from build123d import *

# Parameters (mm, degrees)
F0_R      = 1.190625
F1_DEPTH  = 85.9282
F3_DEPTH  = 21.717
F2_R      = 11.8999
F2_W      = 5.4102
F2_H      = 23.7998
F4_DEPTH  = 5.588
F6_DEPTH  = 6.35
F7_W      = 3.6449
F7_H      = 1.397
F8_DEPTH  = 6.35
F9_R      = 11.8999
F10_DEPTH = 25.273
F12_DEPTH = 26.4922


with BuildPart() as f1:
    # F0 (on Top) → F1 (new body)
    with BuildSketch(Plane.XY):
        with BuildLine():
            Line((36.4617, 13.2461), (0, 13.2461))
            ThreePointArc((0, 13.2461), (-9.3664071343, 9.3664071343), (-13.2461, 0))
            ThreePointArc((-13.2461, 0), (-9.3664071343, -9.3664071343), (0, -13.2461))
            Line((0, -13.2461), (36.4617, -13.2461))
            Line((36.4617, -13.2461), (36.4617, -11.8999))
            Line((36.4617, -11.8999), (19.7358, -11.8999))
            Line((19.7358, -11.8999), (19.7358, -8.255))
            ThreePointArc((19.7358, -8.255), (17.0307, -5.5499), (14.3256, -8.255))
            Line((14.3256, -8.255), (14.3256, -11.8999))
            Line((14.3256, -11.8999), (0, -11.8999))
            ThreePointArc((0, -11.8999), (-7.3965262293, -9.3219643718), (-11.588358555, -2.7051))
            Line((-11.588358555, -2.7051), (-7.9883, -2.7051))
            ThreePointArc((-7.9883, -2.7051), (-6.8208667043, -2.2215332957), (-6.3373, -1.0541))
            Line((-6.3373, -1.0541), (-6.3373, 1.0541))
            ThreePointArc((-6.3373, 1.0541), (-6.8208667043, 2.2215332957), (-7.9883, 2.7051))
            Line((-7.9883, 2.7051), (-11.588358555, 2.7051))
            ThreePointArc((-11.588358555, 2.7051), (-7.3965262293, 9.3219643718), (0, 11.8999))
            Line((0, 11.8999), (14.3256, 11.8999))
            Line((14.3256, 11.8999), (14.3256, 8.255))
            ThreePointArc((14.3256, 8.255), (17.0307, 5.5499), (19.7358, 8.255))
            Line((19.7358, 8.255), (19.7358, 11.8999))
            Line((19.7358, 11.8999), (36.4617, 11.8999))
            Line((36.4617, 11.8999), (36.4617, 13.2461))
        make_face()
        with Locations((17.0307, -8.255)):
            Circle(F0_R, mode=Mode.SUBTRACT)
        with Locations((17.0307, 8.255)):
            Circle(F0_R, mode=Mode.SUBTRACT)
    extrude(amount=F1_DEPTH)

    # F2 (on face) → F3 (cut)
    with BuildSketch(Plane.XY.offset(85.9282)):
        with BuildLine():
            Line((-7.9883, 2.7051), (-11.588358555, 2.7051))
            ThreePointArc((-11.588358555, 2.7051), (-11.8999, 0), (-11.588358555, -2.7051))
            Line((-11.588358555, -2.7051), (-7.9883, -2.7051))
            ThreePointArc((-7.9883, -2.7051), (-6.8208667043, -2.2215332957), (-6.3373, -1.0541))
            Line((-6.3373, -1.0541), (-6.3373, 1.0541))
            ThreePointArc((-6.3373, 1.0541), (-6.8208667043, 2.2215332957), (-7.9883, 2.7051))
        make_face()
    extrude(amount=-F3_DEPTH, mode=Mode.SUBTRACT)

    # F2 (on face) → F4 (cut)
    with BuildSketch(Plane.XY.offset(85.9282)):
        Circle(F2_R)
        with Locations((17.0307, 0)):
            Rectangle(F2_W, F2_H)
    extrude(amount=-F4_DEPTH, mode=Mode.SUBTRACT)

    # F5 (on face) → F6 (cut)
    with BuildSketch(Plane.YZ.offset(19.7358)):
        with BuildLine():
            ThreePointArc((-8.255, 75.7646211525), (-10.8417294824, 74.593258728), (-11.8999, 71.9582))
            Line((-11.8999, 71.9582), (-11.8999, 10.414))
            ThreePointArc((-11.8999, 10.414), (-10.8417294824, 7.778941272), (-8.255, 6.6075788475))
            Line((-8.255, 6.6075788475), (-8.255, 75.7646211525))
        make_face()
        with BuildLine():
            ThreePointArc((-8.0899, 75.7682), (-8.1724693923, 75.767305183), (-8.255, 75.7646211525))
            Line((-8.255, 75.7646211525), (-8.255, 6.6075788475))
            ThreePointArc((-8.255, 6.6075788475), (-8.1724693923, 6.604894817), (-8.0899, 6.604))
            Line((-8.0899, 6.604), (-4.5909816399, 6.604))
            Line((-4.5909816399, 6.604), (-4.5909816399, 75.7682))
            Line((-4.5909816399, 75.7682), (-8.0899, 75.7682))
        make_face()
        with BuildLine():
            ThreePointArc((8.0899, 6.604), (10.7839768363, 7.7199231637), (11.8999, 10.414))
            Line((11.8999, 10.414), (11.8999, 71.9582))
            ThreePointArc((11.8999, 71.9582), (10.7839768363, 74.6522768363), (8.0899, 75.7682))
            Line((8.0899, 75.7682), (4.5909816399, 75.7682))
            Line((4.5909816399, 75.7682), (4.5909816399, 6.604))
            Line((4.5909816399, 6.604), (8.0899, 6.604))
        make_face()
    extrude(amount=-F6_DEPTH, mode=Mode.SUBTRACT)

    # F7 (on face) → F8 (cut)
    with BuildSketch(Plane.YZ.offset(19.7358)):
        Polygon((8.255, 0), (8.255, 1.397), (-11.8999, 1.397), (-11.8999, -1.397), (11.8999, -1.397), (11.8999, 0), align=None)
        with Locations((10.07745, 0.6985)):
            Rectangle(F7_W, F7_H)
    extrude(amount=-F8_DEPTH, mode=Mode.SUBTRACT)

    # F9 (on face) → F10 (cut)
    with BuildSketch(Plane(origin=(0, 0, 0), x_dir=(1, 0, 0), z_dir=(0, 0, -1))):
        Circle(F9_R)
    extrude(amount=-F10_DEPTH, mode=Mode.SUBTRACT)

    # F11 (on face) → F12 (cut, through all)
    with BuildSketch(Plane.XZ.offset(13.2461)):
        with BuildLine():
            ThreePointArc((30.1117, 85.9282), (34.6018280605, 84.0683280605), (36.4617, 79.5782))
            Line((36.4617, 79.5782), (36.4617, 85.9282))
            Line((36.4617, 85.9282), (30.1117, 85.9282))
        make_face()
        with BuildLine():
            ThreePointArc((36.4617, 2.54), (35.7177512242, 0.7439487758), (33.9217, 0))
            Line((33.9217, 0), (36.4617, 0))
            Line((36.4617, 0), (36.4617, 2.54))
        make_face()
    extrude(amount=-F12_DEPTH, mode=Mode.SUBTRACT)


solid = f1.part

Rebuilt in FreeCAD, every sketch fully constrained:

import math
import FreeCAD as App
import Part
import Sketcher
Q = App.Units.Quantity


def add_polygon(sketch, points):
    """Adds a closed chain of lines whose ends are joined by coincident constraints."""
    first, n = sketch.GeometryCount, len(points)
    for a, b in zip(points, points[1:] + points[:1]):
        sketch.addGeometry(Part.LineSegment(App.Vector(*a, 0), App.Vector(*b, 0)), False)
    for i in range(n):
        sketch.addConstraint(Sketcher.Constraint("Coincident", first + i, 2, first + (i + 1) % n, 1))

doc = App.newDocument("Part")
body = doc.addObject("PartDesign::Body", "Body")

# Sketch on XY plane
sketch1 = body.newObject("Sketcher::SketchObject", "Sketch")
sketch1.AttachmentSupport = (doc.getObject("XY_Plane"), [""])
sketch1.MapMode = "FlatFace"
sketch1.addGeometry([
    Part.LineSegment(App.Vector(36.4617, 13.2461, 0), App.Vector(0, 13.2461, 0)),  # 0
    Part.ArcOfCircle(Part.Circle(App.Vector(0, 0, 0), App.Vector(0, 0, 1), 13.2461), math.radians(90), math.radians(180)),  # 1
    Part.ArcOfCircle(Part.Circle(App.Vector(0, 0, 0), App.Vector(0, 0, 1), 13.2461), math.radians(180), math.radians(270)),  # 2
    Part.LineSegment(App.Vector(0, -13.2461, 0), App.Vector(36.4617, -13.2461, 0)),  # 3
    Part.LineSegment(App.Vector(36.4617, -13.2461, 0), App.Vector(36.4617, -11.8999, 0)),  # 4
    Part.LineSegment(App.Vector(36.4617, -11.8999, 0), App.Vector(19.7358, -11.8999, 0)),  # 5
    Part.LineSegment(App.Vector(19.7358, -11.8999, 0), App.Vector(19.7358, -8.255, 0)),  # 6
    Part.ArcOfCircle(Part.Circle(App.Vector(17.0307, -8.255, 0), App.Vector(0, 0, 1), 2.7051), math.radians(0), math.radians(180)),  # 7
    Part.LineSegment(App.Vector(14.3256, -8.255, 0), App.Vector(14.3256, -11.8999, 0)),  # 8
    Part.LineSegment(App.Vector(14.3256, -11.8999, 0), App.Vector(0, -11.8999, 0)),  # 9
    Part.ArcOfCircle(Part.Circle(App.Vector(0, 0, 0), App.Vector(0, 0, 1), 11.8999), math.radians(-166.860587), math.radians(-90)),  # 10
    Part.LineSegment(App.Vector(-11.588359, -2.7051, 0), App.Vector(-7.9883, -2.7051, 0)),  # 11
    Part.ArcOfCircle(Part.Circle(App.Vector(-7.9883, -1.0541, 0), App.Vector(0, 0, 1), 1.651), math.radians(-90), math.radians(0)),  # 12
    Part.LineSegment(App.Vector(-6.3373, -1.0541, 0), App.Vector(-6.3373, 1.0541, 0)),  # 13
    Part.ArcOfCircle(Part.Circle(App.Vector(-7.9883, 1.0541, 0), App.Vector(0, 0, 1), 1.651), math.radians(0), math.radians(90)),  # 14
    Part.LineSegment(App.Vector(-7.9883, 2.7051, 0), App.Vector(-11.588359, 2.7051, 0)),  # 15
    Part.ArcOfCircle(Part.Circle(App.Vector(0, 0, 0), App.Vector(0, 0, 1), 11.8999), math.radians(90), math.radians(166.860587)),  # 16
    Part.LineSegment(App.Vector(0, 11.8999, 0), App.Vector(14.3256, 11.8999, 0)),  # 17
    Part.LineSegment(App.Vector(14.3256, 11.8999, 0), App.Vector(14.3256, 8.255, 0)),  # 18
    Part.ArcOfCircle(Part.Circle(App.Vector(17.0307, 8.255, 0), App.Vector(0, 0, 1), 2.7051), math.radians(180), math.radians(360)),  # 19
    Part.LineSegment(App.Vector(19.7358, 8.255, 0), App.Vector(19.7358, 11.8999, 0)),  # 20
    Part.LineSegment(App.Vector(19.7358, 11.8999, 0), App.Vector(36.4617, 11.8999, 0)),  # 21
    Part.LineSegment(App.Vector(36.4617, 11.8999, 0), App.Vector(36.4617, 13.2461, 0)),  # 22
    Part.Circle(App.Vector(17.0307, -8.255, 0), App.Vector(0, 0, 1), 1.190625),  # 23
    Part.Circle(App.Vector(17.0307, 8.255, 0), App.Vector(0, 0, 1), 1.190625),  # 24
], False)
sketch1.addConstraint([
    Sketcher.Constraint("Tangent", 0, 2, 1, 1),
    Sketcher.Constraint("Tangent", 1, 2, 2, 1),
    Sketcher.Constraint("Tangent", 2, 2, 3, 1),
    Sketcher.Constraint("Coincident", 3, 2, 4, 1),
    Sketcher.Constraint("Coincident", 4, 2, 5, 1),
    Sketcher.Constraint("Coincident", 5, 2, 6, 1),
    Sketcher.Constraint("Tangent", 6, 2, 7, 1),
    Sketcher.Constraint("Tangent", 7, 2, 8, 1),
    Sketcher.Constraint("Coincident", 8, 2, 9, 1),
    Sketcher.Constraint("Tangent", 9, 2, 10, 2),
    Sketcher.Constraint("Coincident", 10, 1, 11, 1),
    Sketcher.Constraint("Tangent", 11, 2, 12, 1),
    Sketcher.Constraint("Tangent", 12, 2, 13, 1),
    Sketcher.Constraint("Tangent", 13, 2, 14, 1),
    Sketcher.Constraint("Tangent", 14, 2, 15, 1),
    Sketcher.Constraint("Coincident", 15, 2, 16, 2),
    Sketcher.Constraint("Tangent", 16, 1, 17, 1),
    Sketcher.Constraint("Coincident", 17, 2, 18, 1),
    Sketcher.Constraint("Tangent", 18, 2, 19, 1),
    Sketcher.Constraint("Tangent", 19, 2, 20, 1),
    Sketcher.Constraint("Coincident", 20, 2, 21, 1),
    Sketcher.Constraint("Coincident", 21, 2, 22, 1),
    Sketcher.Constraint("Coincident", 22, 2, 0, 1),
    Sketcher.Constraint("Horizontal", 0),
    Sketcher.Constraint("Horizontal", 3),
    Sketcher.Constraint("Vertical", 4),
    Sketcher.Constraint("Horizontal", 5),
    Sketcher.Constraint("Vertical", 6),
    Sketcher.Constraint("Vertical", 8),
    Sketcher.Constraint("Horizontal", 9),
    Sketcher.Constraint("Horizontal", 11),
    Sketcher.Constraint("Vertical", 13),
    Sketcher.Constraint("Horizontal", 15),
    Sketcher.Constraint("Horizontal", 17),
    Sketcher.Constraint("Vertical", 18),
    Sketcher.Constraint("Vertical", 20),
    Sketcher.Constraint("Horizontal", 21),
    Sketcher.Constraint("Vertical", 22),
    Sketcher.Constraint("Coincident", 1, 3, -1, 1),
    Sketcher.Constraint("Coincident", 10, 3, -1, 1),
    Sketcher.Constraint("Coincident", 16, 3, -1, 1),
    Sketcher.Constraint("Coincident", 23, 3, 7, 3),
    Sketcher.Constraint("Coincident", 24, 3, 19, 3),
    Sketcher.Constraint("Equal", 1, 2),
    Sketcher.Constraint("Equal", 12, 14),
    Sketcher.Constraint("Equal", 10, 16),
    Sketcher.Constraint("Equal", 7, 19),
    Sketcher.Constraint("Equal", 23, 24),
    Sketcher.Constraint("Symmetric", 7, 3, 19, 3, -1),
    Sketcher.Constraint("Symmetric", 4, 2, 21, 2, -1),
    Sketcher.Constraint("PointOnObject", 1, 2, -1),
    Sketcher.Constraint("Horizontal", 5, 2, 8, 2),
    Sketcher.Constraint("Vertical", 10, 1, 15, 2),
    Sketcher.Constraint("Diameter", 23, Q("0.09375 in")),
    Sketcher.Constraint("Radius", 12, Q("0.065 in")),
    Sketcher.Constraint("Radius", 1, Q("0.5215 in")),
    Sketcher.Constraint("Radius", 7, Q("0.1065 in")),
    Sketcher.Constraint("Radius", 10, Q("0.4685 in")),
    Sketcher.Constraint("DistanceX", 9, 2, 9, 1, Q("0.564 in")),
    Sketcher.Constraint("DistanceY", 13, 1, 13, 2, Q("0.083 in")),
    Sketcher.Constraint("DistanceY", 7, 3, 19, 3, Q("0.65 in")),
    Sketcher.Constraint("DistanceX", 0, 2, 0, 1, Q("1.4355 in")),
    Sketcher.Constraint("DistanceX", 12, 3, 7, 3, Q("0.985 in")),
])
pad1 = body.newObject("PartDesign::Pad", "Pad")
pad1.Profile = sketch1
pad1.Length = Q("3.383 in")

# Sketch on XY plane
sketch2 = body.newObject("Sketcher::SketchObject", "Sketch001")
sketch2.AttachmentSupport = (doc.getObject("XY_Plane"), [""])
sketch2.MapMode = "FlatFace"
sketch2.AttachmentOffset = App.Placement(App.Vector(0, 0, 3.383 * 25.4), App.Rotation())
sketch2.addGeometry([
    Part.LineSegment(App.Vector(-7.9883, 2.7051, 0), App.Vector(-11.588359, 2.7051, 0)),  # 0
    Part.ArcOfCircle(Part.Circle(App.Vector(0, 0, 0), App.Vector(0, 0, 1), 11.8999), math.radians(166.860587), math.radians(193.139413)),  # 1
    Part.LineSegment(App.Vector(-11.588359, -2.7051, 0), App.Vector(-7.9883, -2.7051, 0)),  # 2
    Part.ArcOfCircle(Part.Circle(App.Vector(-7.9883, -1.0541, 0), App.Vector(0, 0, 1), 1.651), math.radians(-90), math.radians(0)),  # 3
    Part.LineSegment(App.Vector(-6.3373, -1.0541, 0), App.Vector(-6.3373, 1.0541, 0)),  # 4
    Part.ArcOfCircle(Part.Circle(App.Vector(-7.9883, 1.0541, 0), App.Vector(0, 0, 1), 1.651), math.radians(0), math.radians(90)),  # 5
], False)
sketch2.addConstraint([
    Sketcher.Constraint("Coincident", 0, 2, 1, 1),
    Sketcher.Constraint("Coincident", 1, 2, 2, 1),
    Sketcher.Constraint("Tangent", 2, 2, 3, 1),
    Sketcher.Constraint("Tangent", 3, 2, 4, 1),
    Sketcher.Constraint("Tangent", 4, 2, 5, 1),
    Sketcher.Constraint("Tangent", 5, 2, 0, 1),
    Sketcher.Constraint("Horizontal", 0),
    Sketcher.Constraint("Horizontal", 2),
    Sketcher.Constraint("Vertical", 4),
    Sketcher.Constraint("Coincident", 1, 3, -1, 1),
    Sketcher.Constraint("Equal", 3, 5),
    Sketcher.Constraint("Vertical", 0, 2, 1, 2),
    Sketcher.Constraint("Radius", 3, Q("0.065 in")),
    Sketcher.Constraint("Radius", 1, Q("0.4685 in")),
    Sketcher.Constraint("DistanceY", 4, 1, 4, 2, Q("0.083 in")),
    Sketcher.Constraint("DistanceX", 3, 3, -1, 1, Q("0.3145 in")),
])
pocket1 = body.newObject("PartDesign::Pocket", "Pocket")
pocket1.Profile = sketch2
pocket1.Length = Q("0.855 in")

# Sketch on XY plane
sketch3 = body.newObject("Sketcher::SketchObject", "Sketch002")
sketch3.AttachmentSupport = (doc.getObject("XY_Plane"), [""])
sketch3.MapMode = "FlatFace"
sketch3.AttachmentOffset = App.Placement(App.Vector(0, 0, 3.383 * 25.4), App.Rotation())
sketch3.addGeometry(Part.Circle(App.Vector(0, 0, 0), App.Vector(0, 0, 1), 11.8999), False)  # 0
add_polygon(sketch3, [(14.3256, 11.8999), (14.3256, -11.8999), (19.7358, -11.8999), (19.7358, 11.8999)])  # lines 1-4
sketch3.addConstraint([
    Sketcher.Constraint("Vertical", 1),
    Sketcher.Constraint("Horizontal", 2),
    Sketcher.Constraint("Vertical", 3),
    Sketcher.Constraint("Horizontal", 4),
    Sketcher.Constraint("Coincident", 0, 3, -1, 1),
    Sketcher.Constraint("Diameter", 0, Q("0.937 in")),
    Sketcher.Constraint("DistanceX", 2, 1, 2, 2, Q("0.213 in")),
    Sketcher.Constraint("DistanceY", 1, 2, 1, 1, Q("0.937 in")),
    Sketcher.Constraint("DistanceX", -1, 1, 1, 2, Q("0.564 in")),
    Sketcher.Constraint("DistanceY", 1, 2, -1, 1, Q("0.4685 in")),
])
pocket2 = body.newObject("PartDesign::Pocket", "Pocket001")
pocket2.Profile = sketch3
pocket2.Length = Q("0.22 in")

# Sketch on YZ plane
sketch4 = body.newObject("Sketcher::SketchObject", "Sketch003")
sketch4.AttachmentSupport = (doc.getObject("YZ_Plane"), [""])
sketch4.MapMode = "FlatFace"
sketch4.AttachmentOffset = App.Placement(App.Vector(0, 0, 0.777 * 25.4), App.Rotation())
sketch4.addGeometry([
    Part.ArcOfCircle(Part.Circle(App.Vector(-8.0899, 71.9582, 0), App.Vector(0, 0, 1), 3.81), math.radians(92.483595), math.radians(180)),  # 0
    Part.LineSegment(App.Vector(-11.8999, 71.9582, 0), App.Vector(-11.8999, 10.414, 0)),  # 1
    Part.ArcOfCircle(Part.Circle(App.Vector(-8.0899, 10.414, 0), App.Vector(0, 0, 1), 3.81), math.radians(180), math.radians(267.516405)),  # 2
    Part.ArcOfCircle(Part.Circle(App.Vector(-8.0899, 10.414, 0), App.Vector(0, 0, 1), 3.81), math.radians(-92.483595), math.radians(-90)),  # 3
    Part.LineSegment(App.Vector(-8.0899, 6.604, 0), App.Vector(-4.590982, 6.604, 0)),  # 4
    Part.LineSegment(App.Vector(-4.590982, 6.604, 0), App.Vector(-4.590982, 75.7682, 0)),  # 5
    Part.LineSegment(App.Vector(-4.590982, 75.7682, 0), App.Vector(-8.0899, 75.7682, 0)),  # 6
    Part.ArcOfCircle(Part.Circle(App.Vector(-8.0899, 71.9582, 0), App.Vector(0, 0, 1), 3.81), math.radians(90), math.radians(92.483595)),  # 7
    Part.ArcOfCircle(Part.Circle(App.Vector(8.0899, 10.414, 0), App.Vector(0, 0, 1), 3.81), math.radians(-90), math.radians(0)),  # 8
    Part.LineSegment(App.Vector(11.8999, 10.414, 0), App.Vector(11.8999, 71.9582, 0)),  # 9
    Part.ArcOfCircle(Part.Circle(App.Vector(8.0899, 71.9582, 0), App.Vector(0, 0, 1), 3.81), math.radians(0), math.radians(90)),  # 10
    Part.LineSegment(App.Vector(8.0899, 75.7682, 0), App.Vector(4.590982, 75.7682, 0)),  # 11
    Part.LineSegment(App.Vector(4.590982, 75.7682, 0), App.Vector(4.590982, 6.604, 0)),  # 12
    Part.LineSegment(App.Vector(4.590982, 6.604, 0), App.Vector(8.0899, 6.604, 0)),  # 13
], False)
sketch4.addConstraint([
    Sketcher.Constraint("Tangent", 0, 2, 1, 1),
    Sketcher.Constraint("Tangent", 1, 2, 2, 1),
    Sketcher.Constraint("Tangent", 2, 2, 3, 1),
    Sketcher.Constraint("Tangent", 3, 2, 4, 1),
    Sketcher.Constraint("Coincident", 4, 2, 5, 1),
    Sketcher.Constraint("Coincident", 5, 2, 6, 1),
    Sketcher.Constraint("Tangent", 6, 2, 7, 1),
    Sketcher.Constraint("Tangent", 7, 2, 0, 1),
    Sketcher.Constraint("Tangent", 8, 2, 9, 1),
    Sketcher.Constraint("Tangent", 9, 2, 10, 1),
    Sketcher.Constraint("Tangent", 10, 2, 11, 1),
    Sketcher.Constraint("Coincident", 11, 2, 12, 1),
    Sketcher.Constraint("Coincident", 12, 2, 13, 1),
    Sketcher.Constraint("Tangent", 13, 2, 8, 1),
    Sketcher.Constraint("Vertical", 1),
    Sketcher.Constraint("Horizontal", 4),
    Sketcher.Constraint("Vertical", 5),
    Sketcher.Constraint("Horizontal", 6),
    Sketcher.Constraint("Vertical", 9),
    Sketcher.Constraint("Horizontal", 11),
    Sketcher.Constraint("Vertical", 12),
    Sketcher.Constraint("Horizontal", 13),
    Sketcher.Constraint("Equal", 0, 2),
    Sketcher.Constraint("Equal", 2, 3),
    Sketcher.Constraint("Equal", 3, 7),
    Sketcher.Constraint("Equal", 7, 8),
    Sketcher.Constraint("Equal", 8, 10),
    Sketcher.Constraint("Symmetric", 2, 3, 8, 3, -2),
    Sketcher.Constraint("Symmetric", 5, 2, 11, 2, -2),
    Sketcher.Constraint("Vertical", 2, 2, 7, 2),
    Sketcher.Constraint("Radius", 0, Q("0.15 in")),
    Sketcher.Constraint("DistanceY", 1, 2, 1, 1, Q("2.423 in")),
    Sketcher.Constraint("DistanceY", -1, 1, 2, 3, Q("0.41 in")),
    Sketcher.Constraint("DistanceX", 2, 2, -1, 1, Q("0.325 in")),
    Sketcher.Constraint("DistanceX", 3, 3, 8, 3, Q("0.637 in")),
    Sketcher.Constraint("DistanceX", 4, 1, 4, 2, 3.498918),
])
pocket3 = body.newObject("PartDesign::Pocket", "Pocket002")
pocket3.Profile = sketch4
pocket3.Length = Q("0.25 in")

# Sketch on YZ plane
sketch5 = body.newObject("Sketcher::SketchObject", "Sketch004")
sketch5.AttachmentSupport = (doc.getObject("YZ_Plane"), [""])
sketch5.MapMode = "FlatFace"
sketch5.AttachmentOffset = App.Placement(App.Vector(0, 0, 0.777 * 25.4), App.Rotation())
add_polygon(sketch5, [(-11.8999, 1.397), (-11.8999, -1.397), (11.8999, -1.397), (11.8999, 1.397)])  # lines 0-3
sketch5.addConstraint([
    Sketcher.Constraint("Vertical", 0),
    Sketcher.Constraint("Horizontal", 1),
    Sketcher.Constraint("Vertical", 2),
    Sketcher.Constraint("Horizontal", 3),
    Sketcher.Constraint("Symmetric", 0, 2, 2, 2, -1, 1),
    Sketcher.Constraint("DistanceY", 0, 2, 0, 1, Q("0.11 in")),
    Sketcher.Constraint("DistanceX", 1, 1, 1, 2, Q("0.937 in")),
])
pocket4 = body.newObject("PartDesign::Pocket", "Pocket003")
pocket4.Profile = sketch5
pocket4.Length = Q("0.25 in")

# Sketch on XY plane
sketch6 = body.newObject("Sketcher::SketchObject", "Sketch005")
sketch6.AttachmentSupport = (doc.getObject("XY_Plane"), [""])
sketch6.MapMode = "FlatFace"
sketch6.addGeometry(Part.Circle(App.Vector(0, 0, 0), App.Vector(0, 0, 1), 11.8999), False)
sketch6.addConstraint([
    Sketcher.Constraint("Coincident", 0, 3, -1, 1),
    Sketcher.Constraint("Diameter", 0, Q("0.937 in")),
])
pocket5 = body.newObject("PartDesign::Pocket", "Pocket004")
pocket5.Profile = sketch6
pocket5.Length = Q("0.995 in")
pocket5.Reversed = True

# Sketch on XZ plane
sketch7 = body.newObject("Sketcher::SketchObject", "Sketch006")
sketch7.AttachmentSupport = (doc.getObject("XZ_Plane"), [""])
sketch7.MapMode = "FlatFace"
sketch7.AttachmentOffset = App.Placement(App.Vector(0, 0, 0.5215 * 25.4), App.Rotation())
sketch7.addGeometry([
    Part.ArcOfCircle(Part.Circle(App.Vector(30.1117, 79.5782, 0), App.Vector(0, 0, 1), 6.35), math.radians(0), math.radians(90)),  # 0
    Part.LineSegment(App.Vector(36.4617, 79.5782, 0), App.Vector(36.4617, 85.9282, 0)),  # 1
    Part.LineSegment(App.Vector(36.4617, 85.9282, 0), App.Vector(30.1117, 85.9282, 0)),  # 2
    Part.ArcOfCircle(Part.Circle(App.Vector(33.9217, 2.54, 0), App.Vector(0, 0, 1), 2.54), math.radians(-90), math.radians(0)),  # 3
    Part.LineSegment(App.Vector(33.9217, 0, 0), App.Vector(36.4617, 0, 0)),  # 4
    Part.LineSegment(App.Vector(36.4617, 0, 0), App.Vector(36.4617, 2.54, 0)),  # 5
], False)
sketch7.addConstraint([
    Sketcher.Constraint("Tangent", 0, 1, 1, 1),
    Sketcher.Constraint("Coincident", 1, 2, 2, 1),
    Sketcher.Constraint("Tangent", 2, 2, 0, 2),
    Sketcher.Constraint("Tangent", 3, 1, 4, 1),
    Sketcher.Constraint("Coincident", 4, 2, 5, 1),
    Sketcher.Constraint("Tangent", 5, 2, 3, 2),
    Sketcher.Constraint("Vertical", 1),
    Sketcher.Constraint("Horizontal", 2),
    Sketcher.Constraint("Horizontal", 4),
    Sketcher.Constraint("Vertical", 5),
    Sketcher.Constraint("PointOnObject", 3, 1, -1),
    Sketcher.Constraint("Vertical", 1, 2, 4, 2),
    Sketcher.Constraint("Radius", 3, Q("0.1 in")),
    Sketcher.Constraint("Radius", 0, Q("0.25 in")),
    Sketcher.Constraint("DistanceY", -1, 1, 0, 3, Q("3.133 in")),
    Sketcher.Constraint("DistanceX", -1, 1, 0, 3, Q("1.1855 in")),
])
pocket6 = body.newObject("PartDesign::Pocket", "Pocket005")
pocket6.Profile = sketch7
pocket6.Type = "ThroughAll"

doc.recompute()
